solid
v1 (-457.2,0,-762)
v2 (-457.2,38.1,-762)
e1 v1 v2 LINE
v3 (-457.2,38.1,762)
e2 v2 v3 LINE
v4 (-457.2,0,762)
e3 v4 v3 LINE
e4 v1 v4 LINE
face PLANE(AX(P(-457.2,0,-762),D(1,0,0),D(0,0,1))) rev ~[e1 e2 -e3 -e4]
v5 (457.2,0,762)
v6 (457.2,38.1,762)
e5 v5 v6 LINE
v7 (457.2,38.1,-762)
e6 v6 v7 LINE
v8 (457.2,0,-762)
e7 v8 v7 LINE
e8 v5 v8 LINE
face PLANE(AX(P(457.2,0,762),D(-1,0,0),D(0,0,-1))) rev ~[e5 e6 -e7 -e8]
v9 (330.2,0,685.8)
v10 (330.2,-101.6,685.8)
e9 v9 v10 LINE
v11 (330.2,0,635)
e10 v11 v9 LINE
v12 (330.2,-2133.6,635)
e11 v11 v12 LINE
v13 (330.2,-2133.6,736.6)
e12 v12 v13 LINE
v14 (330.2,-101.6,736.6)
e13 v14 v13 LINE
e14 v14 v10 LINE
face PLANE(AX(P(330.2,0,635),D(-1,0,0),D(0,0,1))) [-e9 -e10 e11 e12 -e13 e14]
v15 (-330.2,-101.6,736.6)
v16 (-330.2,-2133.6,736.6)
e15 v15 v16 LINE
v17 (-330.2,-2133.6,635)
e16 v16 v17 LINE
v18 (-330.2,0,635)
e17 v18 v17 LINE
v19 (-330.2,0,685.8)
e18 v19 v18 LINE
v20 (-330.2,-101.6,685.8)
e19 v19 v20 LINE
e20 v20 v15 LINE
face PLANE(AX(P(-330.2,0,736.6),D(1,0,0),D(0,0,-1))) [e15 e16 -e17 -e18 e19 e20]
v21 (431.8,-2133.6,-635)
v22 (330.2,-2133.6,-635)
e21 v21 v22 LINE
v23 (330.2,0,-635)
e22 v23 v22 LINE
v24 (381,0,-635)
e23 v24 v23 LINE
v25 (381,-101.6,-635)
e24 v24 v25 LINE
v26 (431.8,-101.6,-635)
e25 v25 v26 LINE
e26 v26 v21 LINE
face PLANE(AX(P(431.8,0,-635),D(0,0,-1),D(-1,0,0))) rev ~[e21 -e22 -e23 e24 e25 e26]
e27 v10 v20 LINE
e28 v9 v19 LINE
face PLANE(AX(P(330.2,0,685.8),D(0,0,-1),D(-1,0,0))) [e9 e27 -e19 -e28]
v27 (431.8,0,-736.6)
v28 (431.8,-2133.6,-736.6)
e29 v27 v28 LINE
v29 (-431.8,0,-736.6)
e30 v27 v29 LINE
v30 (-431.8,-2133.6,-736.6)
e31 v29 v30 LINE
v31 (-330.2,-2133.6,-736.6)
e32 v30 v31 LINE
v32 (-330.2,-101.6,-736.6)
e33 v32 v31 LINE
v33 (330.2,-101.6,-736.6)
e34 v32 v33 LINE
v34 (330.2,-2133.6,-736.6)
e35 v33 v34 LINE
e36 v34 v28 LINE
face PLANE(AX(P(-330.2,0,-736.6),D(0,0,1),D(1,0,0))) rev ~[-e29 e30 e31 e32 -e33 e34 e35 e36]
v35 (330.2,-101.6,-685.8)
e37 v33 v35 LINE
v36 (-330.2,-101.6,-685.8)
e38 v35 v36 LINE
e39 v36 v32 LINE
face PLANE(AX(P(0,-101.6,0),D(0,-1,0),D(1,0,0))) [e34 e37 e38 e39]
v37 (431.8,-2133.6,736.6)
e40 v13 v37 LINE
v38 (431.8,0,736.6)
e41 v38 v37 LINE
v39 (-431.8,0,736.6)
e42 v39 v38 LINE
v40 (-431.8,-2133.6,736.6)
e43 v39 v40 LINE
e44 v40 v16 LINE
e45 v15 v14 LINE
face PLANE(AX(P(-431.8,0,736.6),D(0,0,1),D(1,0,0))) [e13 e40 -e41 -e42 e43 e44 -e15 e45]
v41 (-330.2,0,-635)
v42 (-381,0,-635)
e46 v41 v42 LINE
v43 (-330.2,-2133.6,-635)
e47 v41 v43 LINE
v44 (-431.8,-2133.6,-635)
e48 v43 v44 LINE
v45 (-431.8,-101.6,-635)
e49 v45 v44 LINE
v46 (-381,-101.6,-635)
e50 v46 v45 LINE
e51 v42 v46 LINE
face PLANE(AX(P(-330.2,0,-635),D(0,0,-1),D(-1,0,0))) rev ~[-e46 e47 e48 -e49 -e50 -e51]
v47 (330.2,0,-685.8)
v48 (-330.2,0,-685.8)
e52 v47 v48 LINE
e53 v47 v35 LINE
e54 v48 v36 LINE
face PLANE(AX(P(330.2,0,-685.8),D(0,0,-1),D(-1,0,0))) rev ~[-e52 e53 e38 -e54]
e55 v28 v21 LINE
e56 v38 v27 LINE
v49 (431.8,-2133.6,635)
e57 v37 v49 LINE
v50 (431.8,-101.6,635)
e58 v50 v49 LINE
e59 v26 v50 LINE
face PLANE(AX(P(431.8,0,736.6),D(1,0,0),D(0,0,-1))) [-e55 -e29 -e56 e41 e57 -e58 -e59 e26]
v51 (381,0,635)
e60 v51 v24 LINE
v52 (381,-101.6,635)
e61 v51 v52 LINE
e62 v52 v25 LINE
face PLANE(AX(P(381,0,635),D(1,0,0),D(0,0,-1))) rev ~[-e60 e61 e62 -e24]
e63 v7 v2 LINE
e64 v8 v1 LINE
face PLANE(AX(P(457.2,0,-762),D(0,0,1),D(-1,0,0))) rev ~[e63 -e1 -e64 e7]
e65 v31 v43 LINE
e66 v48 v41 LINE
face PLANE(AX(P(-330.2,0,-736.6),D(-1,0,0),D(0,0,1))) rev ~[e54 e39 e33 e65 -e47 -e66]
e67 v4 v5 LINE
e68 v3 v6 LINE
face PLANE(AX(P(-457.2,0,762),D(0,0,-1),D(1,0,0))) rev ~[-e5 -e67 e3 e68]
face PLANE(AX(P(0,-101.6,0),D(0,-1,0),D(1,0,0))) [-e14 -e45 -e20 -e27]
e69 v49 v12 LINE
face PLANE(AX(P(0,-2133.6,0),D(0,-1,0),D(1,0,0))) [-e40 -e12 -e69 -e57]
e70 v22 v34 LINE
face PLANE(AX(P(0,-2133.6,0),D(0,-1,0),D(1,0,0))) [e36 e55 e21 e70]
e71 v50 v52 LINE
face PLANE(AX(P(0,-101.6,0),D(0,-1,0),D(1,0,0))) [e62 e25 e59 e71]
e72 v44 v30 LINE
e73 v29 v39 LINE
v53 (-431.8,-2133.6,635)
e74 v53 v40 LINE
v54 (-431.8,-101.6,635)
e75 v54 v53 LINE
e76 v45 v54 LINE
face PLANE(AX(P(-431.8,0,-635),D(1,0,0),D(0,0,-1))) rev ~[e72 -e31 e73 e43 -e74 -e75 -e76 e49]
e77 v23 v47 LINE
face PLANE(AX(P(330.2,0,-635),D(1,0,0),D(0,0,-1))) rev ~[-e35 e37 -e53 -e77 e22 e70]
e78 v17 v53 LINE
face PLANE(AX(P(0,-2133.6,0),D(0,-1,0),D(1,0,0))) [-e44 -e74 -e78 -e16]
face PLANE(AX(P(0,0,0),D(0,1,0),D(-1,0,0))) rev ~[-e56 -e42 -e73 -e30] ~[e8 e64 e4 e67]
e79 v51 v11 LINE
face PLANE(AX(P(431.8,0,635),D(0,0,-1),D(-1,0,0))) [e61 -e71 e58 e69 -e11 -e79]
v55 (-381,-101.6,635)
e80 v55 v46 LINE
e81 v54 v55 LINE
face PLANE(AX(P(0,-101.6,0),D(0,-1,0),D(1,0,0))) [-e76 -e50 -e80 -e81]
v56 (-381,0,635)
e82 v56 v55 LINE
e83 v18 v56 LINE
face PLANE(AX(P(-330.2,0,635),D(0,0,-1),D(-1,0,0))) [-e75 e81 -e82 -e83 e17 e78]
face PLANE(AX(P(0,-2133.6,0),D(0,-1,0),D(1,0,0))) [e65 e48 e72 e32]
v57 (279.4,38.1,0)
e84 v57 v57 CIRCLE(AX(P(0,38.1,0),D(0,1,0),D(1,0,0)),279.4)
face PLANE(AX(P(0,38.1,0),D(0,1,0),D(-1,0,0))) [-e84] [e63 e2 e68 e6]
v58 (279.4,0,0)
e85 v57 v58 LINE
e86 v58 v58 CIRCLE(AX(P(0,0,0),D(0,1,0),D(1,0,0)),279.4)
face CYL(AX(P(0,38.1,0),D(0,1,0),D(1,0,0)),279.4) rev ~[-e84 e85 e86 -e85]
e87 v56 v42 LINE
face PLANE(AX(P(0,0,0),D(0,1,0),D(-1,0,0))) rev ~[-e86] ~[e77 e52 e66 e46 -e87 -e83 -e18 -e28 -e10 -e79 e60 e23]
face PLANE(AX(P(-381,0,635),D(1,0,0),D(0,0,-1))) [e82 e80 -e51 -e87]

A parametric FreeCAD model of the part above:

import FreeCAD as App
import Part
import Sketcher
Q = App.Units.Quantity

doc = App.newDocument("Part")
params = doc.addObject("Spreadsheet::Sheet", "Params")
for row, (alias, value) in enumerate([
    ("sketch1_width", "36 in"),
    ("sketch1_height", "60 in"),
    ("pad1_length", "1.5 in"),
    ("sketch2_width", "4 in"),
    ("pad2_length", "84 in"),
    ("sketch3_width", "2 in"),
    ("sketch3_height", "50 in"),
    ("sketch3_width2", "26 in"),
    ("pad3_length", "4 in"),
    ("sketch4_diameter", "22 in"),
    ("pocket1_length", "4 in"),
], start=1):
    params.set(f"A{row}", alias)
    params.set(f"B{row}", "=" + value)
    params.setAlias(f"B{row}", alias)

body = doc.addObject("PartDesign::Body", "Body")

# Sketch on XZ plane
sketch1 = body.newObject("Sketcher::SketchObject", "Sketch")
sketch1.AttachmentSupport = (doc.getObject("XZ_Plane"), [""])
sketch1.MapMode = "FlatFace"
sketch1.addGeometry(Part.LineSegment(App.Vector(-457.2, -762, 0), App.Vector(-457.2, 762, 0)), False)
sketch1.addGeometry(Part.LineSegment(App.Vector(-457.2, 762, 0), App.Vector(457.2, 762, 0)), False)
sketch1.addGeometry(Part.LineSegment(App.Vector(457.2, 762, 0), App.Vector(457.2, -762, 0)), False)
sketch1.addGeometry(Part.LineSegment(App.Vector(457.2, -762, 0), App.Vector(-457.2, -762, 0)), False)
sketch1.addConstraint(Sketcher.Constraint("Coincident", 0, 2, 1, 1))
sketch1.addConstraint(Sketcher.Constraint("Coincident", 1, 2, 2, 1))
sketch1.addConstraint(Sketcher.Constraint("Coincident", 2, 2, 3, 1))
sketch1.addConstraint(Sketcher.Constraint("Coincident", 3, 2, 0, 1))
sketch1.addConstraint(Sketcher.Constraint("Vertical", 0))
sketch1.addConstraint(Sketcher.Constraint("Horizontal", 1))
sketch1.addConstraint(Sketcher.Constraint("Vertical", 2))
sketch1.addConstraint(Sketcher.Constraint("Horizontal", 3))
sketch1.addConstraint(Sketcher.Constraint("Symmetric", 0, 2, 2, 2, -1, 1))
sketch1.addConstraint(Sketcher.Constraint("DistanceX", 1, 1, 1, 2, Q("36 in")))
sketch1.addConstraint(Sketcher.Constraint("DistanceY", 0, 1, 0, 2, Q("60 in")))
sketch1.setExpression("Constraints[9]", "Params.sketch1_width")
sketch1.setExpression("Constraints[10]", "Params.sketch1_height")
pad1 = body.newObject("PartDesign::Pad", "Pad")
pad1.Profile = sketch1
pad1.setExpression("Length", "Params.pad1_length")
pad1.Reversed = True

# Sketch on XZ plane
sketch2 = body.newObject("Sketcher::SketchObject", "Sketch001")
sketch2.AttachmentSupport = (doc.getObject("XZ_Plane"), [""])
sketch2.MapMode = "FlatFace"
sketch2.addGeometry(Part.LineSegment(App.Vector(431.8, 736.6, 0), App.Vector(330.2, 736.6, 0)), False)
sketch2.addGeometry(Part.LineSegment(App.Vector(330.2, 736.6, 0), App.Vector(330.2, 635, 0)), False)
sketch2.addGeometry(Part.LineSegment(App.Vector(330.2, 635, 0), App.Vector(431.8, 635, 0)), False)
sketch2.addGeometry(Part.LineSegment(App.Vector(431.8, 635, 0), App.Vector(431.8, 736.6, 0)), False)
sketch2.addGeometry(Part.LineSegment(App.Vector(431.8, -736.6, 0), App.Vector(431.8, -635, 0)), False)
sketch2.addGeometry(Part.LineSegment(App.Vector(431.8, -635, 0), App.Vector(330.2, -635, 0)), False)
sketch2.addGeometry(Part.LineSegment(App.Vector(330.2, -635, 0), App.Vector(330.2, -736.6, 0)), False)
sketch2.addGeometry(Part.LineSegment(App.Vector(330.2, -736.6, 0), App.Vector(431.8, -736.6, 0)), False)
sketch2.addGeometry(Part.LineSegment(App.Vector(-431.8, -635, 0), App.Vector(-431.8, -736.6, 0)), False)
sketch2.addGeometry(Part.LineSegment(App.Vector(-431.8, -736.6, 0), App.Vector(-330.2, -736.6, 0)), False)
sketch2.addGeometry(Part.LineSegment(App.Vector(-330.2, -736.6, 0), App.Vector(-330.2, -635, 0)), False)
sketch2.addGeometry(Part.LineSegment(App.Vector(-330.2, -635, 0), App.Vector(-431.8, -635, 0)), False)
sketch2.addGeometry(Part.LineSegment(App.Vector(-330.2, 736.6, 0), App.Vector(-431.8, 736.6, 0)), False)
sketch2.addGeometry(Part.LineSegment(App.Vector(-431.8, 736.6, 0), App.Vector(-431.8, 635, 0)), False)
sketch2.addGeometry(Part.LineSegment(App.Vector(-431.8, 635, 0), App.Vector(-330.2, 635, 0)), False)
sketch2.addGeometry(Part.LineSegment(App.Vector(-330.2, 635, 0), App.Vector(-330.2, 736.6, 0)), False)
sketch2.addConstraint(Sketcher.Constraint("Coincident", 0, 2, 1, 1))
sketch2.addConstraint(Sketcher.Constraint("Coincident", 1, 2, 2, 1))
sketch2.addConstraint(Sketcher.Constraint("Coincident", 2, 2, 3, 1))
sketch2.addConstraint(Sketcher.Constraint("Coincident", 3, 2, 0, 1))
sketch2.addConstraint(Sketcher.Constraint("Coincident", 4, 2, 5, 1))
sketch2.addConstraint(Sketcher.Constraint("Coincident", 5, 2, 6, 1))
sketch2.addConstraint(Sketcher.Constraint("Coincident", 6, 2, 7, 1))
sketch2.addConstraint(Sketcher.Constraint("Coincident", 7, 2, 4, 1))
sketch2.addConstraint(Sketcher.Constraint("Coincident", 8, 2, 9, 1))
sketch2.addConstraint(Sketcher.Constraint("Coincident", 9, 2, 10, 1))
sketch2.addConstraint(Sketcher.Constraint("Coincident", 10, 2, 11, 1))
sketch2.addConstraint(Sketcher.Constraint("Coincident", 11, 2, 8, 1))
sketch2.addConstraint(Sketcher.Constraint("Coincident", 12, 2, 13, 1))
sketch2.addConstraint(Sketcher.Constraint("Coincident", 13, 2, 14, 1))
sketch2.addConstraint(Sketcher.Constraint("Coincident", 14, 2, 15, 1))
sketch2.addConstraint(Sketcher.Constraint("Coincident", 15, 2, 12, 1))
sketch2.addConstraint(Sketcher.Constraint("Horizontal", 0))
sketch2.addConstraint(Sketcher.Constraint("Vertical", 1))
sketch2.addConstraint(Sketcher.Constraint("Horizontal", 2))
sketch2.addConstraint(Sketcher.Constraint("Vertical", 3))
sketch2.addConstraint(Sketcher.Constraint("Vertical", 4))
sketch2.addConstraint(Sketcher.Constraint("Horizontal", 5))
sketch2.addConstraint(Sketcher.Constraint("Vertical", 6))
sketch2.addConstraint(Sketcher.Constraint("Horizontal", 7))
sketch2.addConstraint(Sketcher.Constraint("Vertical", 8))
sketch2.addConstraint(Sketcher.Constraint("Horizontal", 9))
sketch2.addConstraint(Sketcher.Constraint("Vertical", 10))
sketch2.addConstraint(Sketcher.Constraint("Horizontal", 11))
sketch2.addConstraint(Sketcher.Constraint("Horizontal", 12))
sketch2.addConstraint(Sketcher.Constraint("Vertical", 13))
sketch2.addConstraint(Sketcher.Constraint("Horizontal", 14))
sketch2.addConstraint(Sketcher.Constraint("Vertical", 15))
sketch2.addConstraint(Sketcher.Constraint("Symmetric", 3, 2, 8, 2, -1, 1))
sketch2.addConstraint(Sketcher.Constraint("Symmetric", 1, 2, 10, 2, -1, 1))
sketch2.addConstraint(Sketcher.Constraint("Symmetric", 7, 2, 12, 2, -1, 1))
sketch2.addConstraint(Sketcher.Constraint("Symmetric", 5, 2, 14, 2, -1, 1))
sketch2.addConstraint(Sketcher.Constraint("Symmetric", 7, 2, 8, 2, -2))
sketch2.addConstraint(Sketcher.Constraint("Symmetric", 5, 2, 10, 2, -2))
sketch2.addConstraint(Sketcher.Constraint("Equal", 14, 1))
sketch2.addConstraint(Sketcher.Constraint("DistanceX", 0, 2, 0, 1, Q("4 in")))
sketch2.addConstraint(Sketcher.Constraint("DistanceY", 4, 2, 3, 2, Q("54 in")))
sketch2.addConstraint(Sketcher.Constraint("DistanceX", 8, 2, 6, 2, Q("30 in")))
sketch2.setExpression("Constraints[39]", "Params.sketch2_width")
pad2 = body.newObject("PartDesign::Pad", "Pad001")
pad2.Profile = sketch2
pad2.setExpression("Length", "Params.pad2_length")

# Sketch on XZ plane
sketch3 = body.newObject("Sketcher::SketchObject", "Sketch002")
sketch3.AttachmentSupport = (doc.getObject("XZ_Plane"), [""])
sketch3.MapMode = "FlatFace"
sketch3.addGeometry(Part.LineSegment(App.Vector(431.8, -635, 0), App.Vector(431.8, 635, 0)), False)
sketch3.addGeometry(Part.LineSegment(App.Vector(431.8, 635, 0), App.Vector(381, 635, 0)), False)
sketch3.addGeometry(Part.LineSegment(App.Vector(381, 635, 0), App.Vector(381, -635, 0)), False)
sketch3.addGeometry(Part.LineSegment(App.Vector(381, -635, 0), App.Vector(431.8, -635, 0)), False)
sketch3.addGeometry(Part.LineSegment(App.Vector(-330.2, 685.8, 0), App.Vector(330.2, 685.8, 0)), False)
sketch3.addGeometry(Part.LineSegment(App.Vector(330.2, 685.8, 0), App.Vector(330.2, 736.6, 0)), False)
sketch3.addGeometry(Part.LineSegment(App.Vector(330.2, 736.6, 0), App.Vector(-330.2, 736.6, 0)), False)
sketch3.addGeometry(Part.LineSegment(App.Vector(-330.2, 736.6, 0), App.Vector(-330.2, 685.8, 0)), False)
sketch3.addGeometry(Part.LineSegment(App.Vector(-381, 635, 0), App.Vector(-431.8, 635, 0)), False)
sketch3.addGeometry(Part.LineSegment(App.Vector(-431.8, 635, 0), App.Vector(-431.8, -635, 0)), False)
sketch3.addGeometry(Part.LineSegment(App.Vector(-431.8, -635, 0), App.Vector(-381, -635, 0)), False)
sketch3.addGeometry(Part.LineSegment(App.Vector(-381, -635, 0), App.Vector(-381, 635, 0)), False)
sketch3.addGeometry(Part.LineSegment(App.Vector(-330.2, -736.6, 0), App.Vector(330.2, -736.6, 0)), False)
sketch3.addGeometry(Part.LineSegment(App.Vector(330.2, -736.6, 0), App.Vector(330.2, -685.8, 0)), False)
sketch3.addGeometry(Part.LineSegment(App.Vector(330.2, -685.8, 0), App.Vector(-330.2, -685.8, 0)), False)
sketch3.addGeometry(Part.LineSegment(App.Vector(-330.2, -685.8, 0), App.Vector(-330.2, -736.6, 0)), False)
sketch3.addConstraint(Sketcher.Constraint("Coincident", 0, 2, 1, 1))
sketch3.addConstraint(Sketcher.Constraint("Coincident", 1, 2, 2, 1))
sketch3.addConstraint(Sketcher.Constraint("Coincident", 2, 2, 3, 1))
sketch3.addConstraint(Sketcher.Constraint("Coincident", 3, 2, 0, 1))
sketch3.addConstraint(Sketcher.Constraint("Coincident", 4, 2, 5, 1))
sketch3.addConstraint(Sketcher.Constraint("Coincident", 5, 2, 6, 1))
sketch3.addConstraint(Sketcher.Constraint("Coincident", 6, 2, 7, 1))
sketch3.addConstraint(Sketcher.Constraint("Coincident", 7, 2, 4, 1))
sketch3.addConstraint(Sketcher.Constraint("Coincident", 8, 2, 9, 1))
sketch3.addConstraint(Sketcher.Constraint("Coincident", 9, 2, 10, 1))
sketch3.addConstraint(Sketcher.Constraint("Coincident", 10, 2, 11, 1))
sketch3.addConstraint(Sketcher.Constraint("Coincident", 11, 2, 8, 1))
sketch3.addConstraint(Sketcher.Constraint("Coincident", 12, 2, 13, 1))
sketch3.addConstraint(Sketcher.Constraint("Coincident", 13, 2, 14, 1))
sketch3.addConstraint(Sketcher.Constraint("Coincident", 14, 2, 15, 1))
sketch3.addConstraint(Sketcher.Constraint("Coincident", 15, 2, 12, 1))
sketch3.addConstraint(Sketcher.Constraint("Vertical", 0))
sketch3.addConstraint(Sketcher.Constraint("Horizontal", 1))
sketch3.addConstraint(Sketcher.Constraint("Vertical", 2))
sketch3.addConstraint(Sketcher.Constraint("Horizontal", 3))
sketch3.addConstraint(Sketcher.Constraint("Horizontal", 4))
sketch3.addConstraint(Sketcher.Constraint("Vertical", 5))
sketch3.addConstraint(Sketcher.Constraint("Horizontal", 6))
sketch3.addConstraint(Sketcher.Constraint("Vertical", 7))
sketch3.addConstraint(Sketcher.Constraint("Horizontal", 8))
sketch3.addConstraint(Sketcher.Constraint("Vertical", 9))
sketch3.addConstraint(Sketcher.Constraint("Horizontal", 10))
sketch3.addConstraint(Sketcher.Constraint("Vertical", 11))
sketch3.addConstraint(Sketcher.Constraint("Horizontal", 12))
sketch3.addConstraint(Sketcher.Constraint("Vertical", 13))
sketch3.addConstraint(Sketcher.Constraint("Horizontal", 14))
sketch3.addConstraint(Sketcher.Constraint("Vertical", 15))
sketch3.addConstraint(Sketcher.Constraint("Symmetric", 3, 2, 8, 2, -1, 1))
sketch3.addConstraint(Sketcher.Constraint("Symmetric", 1, 2, 10, 2, -1, 1))
sketch3.addConstraint(Sketcher.Constraint("Symmetric", 6, 2, 12, 2, -1, 1))
sketch3.addConstraint(Sketcher.Constraint("Symmetric", 4, 2, 14, 2, -1, 1))
sketch3.addConstraint(Sketcher.Constraint("Horizontal", 1, 2, 8, 2))
sketch3.addConstraint(Sketcher.Constraint("Vertical", 5, 2, 12, 2))
sketch3.addConstraint(Sketcher.Constraint("Equal", 10, 5))
sketch3.addConstraint(Sketcher.Constraint("DistanceX", 1, 2, 1, 1, Q("2 in")))
sketch3.addConstraint(Sketcher.Constraint("DistanceY", 0, 1, 0, 2, Q("50 in")))
sketch3.addConstraint(Sketcher.Constraint("DistanceX", 4, 2, 1, 2, Q("2 in")))
sketch3.addConstraint(Sketcher.Constraint("DistanceY", 1, 2, 4, 2, Q("2 in")))
sketch3.addConstraint(Sketcher.Constraint("DistanceX", 4, 1, 4, 2, Q("26 in")))
sketch3.setExpression("Constraints[39]", "Params.sketch3_width")
sketch3.setExpression("Constraints[40]", "Params.sketch3_height")
sketch3.setExpression("Constraints[43]", "Params.sketch3_width2")
pad3 = body.newObject("PartDesign::Pad", "Pad002")
pad3.Profile = sketch3
pad3.setExpression("Length", "Params.pad3_length")

# Sketch on XZ plane
sketch4 = body.newObject("Sketcher::SketchObject", "Sketch003")
sketch4.AttachmentSupport = (doc.getObject("XZ_Plane"), [""])
sketch4.MapMode = "FlatFace"
sketch4.AttachmentOffset = App.Placement(App.Vector(0, 0, -1.5 * 25.4), App.Rotation())
sketch4.addGeometry(Part.Circle(App.Vector(0, 0, 0), App.Vector(0, 0, 1), 279.4), False)
sketch4.addConstraint(Sketcher.Constraint("Coincident", 0, 3, -1, 1))
sketch4.addConstraint(Sketcher.Constraint("Diameter", 0, Q("22 in")))
sketch4.setExpression("Constraints[1]", "Params.sketch4_diameter")
pocket1 = body.newObject("PartDesign::Pocket", "Pocket")
pocket1.Profile = sketch4
pocket1.setExpression("Length", "Params.pocket1_length")
pocket1.Reversed = True

doc.recompute()
